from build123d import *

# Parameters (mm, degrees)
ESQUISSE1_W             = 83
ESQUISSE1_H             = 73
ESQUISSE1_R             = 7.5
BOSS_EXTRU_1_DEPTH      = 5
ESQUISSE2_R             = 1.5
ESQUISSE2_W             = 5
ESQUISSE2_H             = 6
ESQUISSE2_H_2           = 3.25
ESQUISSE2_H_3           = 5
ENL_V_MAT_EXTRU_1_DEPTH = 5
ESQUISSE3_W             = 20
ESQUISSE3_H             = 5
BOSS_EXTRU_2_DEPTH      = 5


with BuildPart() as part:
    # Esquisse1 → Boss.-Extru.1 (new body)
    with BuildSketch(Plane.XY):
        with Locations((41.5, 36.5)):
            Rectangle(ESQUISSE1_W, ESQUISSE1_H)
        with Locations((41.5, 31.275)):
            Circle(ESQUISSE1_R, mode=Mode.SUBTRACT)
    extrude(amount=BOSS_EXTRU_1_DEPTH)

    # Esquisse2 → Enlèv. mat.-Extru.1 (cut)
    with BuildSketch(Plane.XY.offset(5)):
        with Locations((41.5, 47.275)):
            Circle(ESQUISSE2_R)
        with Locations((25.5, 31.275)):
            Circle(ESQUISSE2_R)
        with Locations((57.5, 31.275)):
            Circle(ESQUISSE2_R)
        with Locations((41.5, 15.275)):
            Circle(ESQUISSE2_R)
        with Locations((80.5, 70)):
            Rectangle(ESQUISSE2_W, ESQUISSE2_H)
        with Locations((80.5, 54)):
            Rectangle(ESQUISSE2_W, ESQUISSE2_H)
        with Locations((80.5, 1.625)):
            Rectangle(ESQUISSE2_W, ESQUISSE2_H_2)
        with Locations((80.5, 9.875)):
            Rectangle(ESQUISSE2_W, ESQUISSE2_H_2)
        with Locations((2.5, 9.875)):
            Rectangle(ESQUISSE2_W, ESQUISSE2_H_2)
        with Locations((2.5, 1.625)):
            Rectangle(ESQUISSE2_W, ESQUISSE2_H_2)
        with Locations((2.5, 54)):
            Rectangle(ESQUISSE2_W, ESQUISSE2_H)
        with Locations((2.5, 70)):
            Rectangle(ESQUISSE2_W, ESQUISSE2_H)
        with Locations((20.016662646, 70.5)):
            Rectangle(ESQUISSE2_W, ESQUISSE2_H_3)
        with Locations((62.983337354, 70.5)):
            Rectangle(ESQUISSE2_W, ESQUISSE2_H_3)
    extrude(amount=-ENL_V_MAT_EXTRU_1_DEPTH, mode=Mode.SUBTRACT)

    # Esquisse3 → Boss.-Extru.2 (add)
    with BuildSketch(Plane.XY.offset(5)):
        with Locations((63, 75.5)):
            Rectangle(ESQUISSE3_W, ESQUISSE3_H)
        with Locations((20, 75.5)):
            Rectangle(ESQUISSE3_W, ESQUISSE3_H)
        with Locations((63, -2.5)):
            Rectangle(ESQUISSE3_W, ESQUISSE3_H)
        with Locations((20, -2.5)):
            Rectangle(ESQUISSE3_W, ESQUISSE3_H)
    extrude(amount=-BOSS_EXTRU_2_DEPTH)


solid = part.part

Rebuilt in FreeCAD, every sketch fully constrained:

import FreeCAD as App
import Part
import Sketcher

V = App.Vector
Q = App.Units.Quantity

doc = App.newDocument("Part")
body = doc.addObject("PartDesign::Body", "Body")

# Sketch on XY plane
sketch1 = body.newObject("Sketcher::SketchObject", "Sketch")
sketch1.AttachmentSupport = (doc.getObject("XY_Plane"), [""])
sketch1.MapMode = "FlatFace"
sketch1.addGeometry(Part.LineSegment(V(0, 73, 0), V(0, 0, 0)), False)
sketch1.addGeometry(Part.LineSegment(V(0, 0, 0), V(83, 0, 0)), False)
sketch1.addGeometry(Part.LineSegment(V(83, 0, 0), V(83, 73, 0)), False)
sketch1.addGeometry(Part.LineSegment(V(83, 73, 0), V(0, 73, 0)), False)
sketch1.addGeometry(Part.Circle(V(41.5, 31.275, 0), V(0, 0, 1), 7.5), False)
sketch1.addConstraint(Sketcher.Constraint("Coincident", 0, 2, 1, 1))
sketch1.addConstraint(Sketcher.Constraint("Coincident", 1, 2, 2, 1))
sketch1.addConstraint(Sketcher.Constraint("Coincident", 2, 2, 3, 1))
sketch1.addConstraint(Sketcher.Constraint("Coincident", 3, 2, 0, 1))
sketch1.addConstraint(Sketcher.Constraint("Vertical", 0))
sketch1.addConstraint(Sketcher.Constraint("Horizontal", 1))
sketch1.addConstraint(Sketcher.Constraint("Vertical", 2))
sketch1.addConstraint(Sketcher.Constraint("Horizontal", 3))
sketch1.addConstraint(Sketcher.Constraint("Coincident", 0, 2, -1, 1))
sketch1.addConstraint(Sketcher.Constraint("Diameter", 4, Q("15 mm")))
sketch1.addConstraint(Sketcher.Constraint("DistanceX", 1, 1, 1, 2, Q("83 mm")))
sketch1.addConstraint(Sketcher.Constraint("DistanceY", 0, 2, 0, 1, Q("73 mm")))
sketch1.addConstraint(Sketcher.Constraint("DistanceX", -1, 1, 4, 3, Q("41.5 mm")))
sketch1.addConstraint(Sketcher.Constraint("DistanceY", -1, 1, 4, 3, Q("31.275 mm")))
pad1 = body.newObject("PartDesign::Pad", "Pad")
pad1.Profile = sketch1
pad1.Length = 5

# Sketch on XY plane
sketch2 = body.newObject("Sketcher::SketchObject", "Sketch001")
sketch2.AttachmentSupport = (doc.getObject("XY_Plane"), [""])
sketch2.MapMode = "FlatFace"
sketch2.AttachmentOffset = App.Placement(V(0, 0, 5), App.Rotation())
sketch2.addGeometry(Part.Circle(V(41.5, 47.275, 0), V(0, 0, 1), 1.5), False)
sketch2.addGeometry(Part.Circle(V(25.5, 31.275, 0), V(0, 0, 1), 1.5), False)
sketch2.addGeometry(Part.Circle(V(57.5, 31.275, 0), V(0, 0, 1), 1.5), False)
sketch2.addGeometry(Part.Circle(V(41.5, 15.275, 0), V(0, 0, 1), 1.5), False)
sketch2.addGeometry(Part.LineSegment(V(78, 73, 0), V(78, 67, 0)), False)
sketch2.addGeometry(Part.LineSegment(V(78, 67, 0), V(83, 67, 0)), False)
sketch2.addGeometry(Part.LineSegment(V(83, 67, 0), V(83, 73, 0)), False)
sketch2.addGeometry(Part.LineSegment(V(83, 73, 0), V(78, 73, 0)), False)
sketch2.addGeometry(Part.LineSegment(V(78, 57, 0), V(78, 51, 0)), False)
sketch2.addGeometry(Part.LineSegment(V(78, 51, 0), V(83, 51, 0)), False)
sketch2.addGeometry(Part.LineSegment(V(83, 51, 0), V(83, 57, 0)), False)
sketch2.addGeometry(Part.LineSegment(V(83, 57, 0), V(78, 57, 0)), False)
sketch2.addGeometry(Part.LineSegment(V(78, 3.25, 0), V(78, 0, 0)), False)
sketch2.addGeometry(Part.LineSegment(V(78, 0, 0), V(83, 0, 0)), False)
sketch2.addGeometry(Part.LineSegment(V(83, 0, 0), V(83, 3.25, 0)), False)
sketch2.addGeometry(Part.LineSegment(V(83, 3.25, 0), V(78, 3.25, 0)), False)
sketch2.addGeometry(Part.LineSegment(V(78, 11.5, 0), V(78, 8.25, 0)), False)
sketch2.addGeometry(Part.LineSegment(V(78, 8.25, 0), V(83, 8.25, 0)), False)
sketch2.addGeometry(Part.LineSegment(V(83, 8.25, 0), V(83, 11.5, 0)), False)
sketch2.addGeometry(Part.LineSegment(V(83, 11.5, 0), V(78, 11.5, 0)), False)
sketch2.addGeometry(Part.LineSegment(V(0, 11.5, 0), V(0, 8.25, 0)), False)
sketch2.addGeometry(Part.LineSegment(V(0, 8.25, 0), V(5, 8.25, 0)), False)
sketch2.addGeometry(Part.LineSegment(V(5, 8.25, 0), V(5, 11.5, 0)), False)
sketch2.addGeometry(Part.LineSegment(V(5, 11.5, 0), V(0, 11.5, 0)), False)
sketch2.addGeometry(Part.LineSegment(V(0, 3.25, 0), V(0, 0, 0)), False)
sketch2.addGeometry(Part.LineSegment(V(0, 0, 0), V(5, 0, 0)), False)
sketch2.addGeometry(Part.LineSegment(V(5, 0, 0), V(5, 3.25, 0)), False)
sketch2.addGeometry(Part.LineSegment(V(5, 3.25, 0), V(0, 3.25, 0)), False)
sketch2.addGeometry(Part.LineSegment(V(0, 57, 0), V(0, 51, 0)), False)
sketch2.addGeometry(Part.LineSegment(V(0, 51, 0), V(5, 51, 0)), False)
sketch2.addGeometry(Part.LineSegment(V(5, 51, 0), V(5, 57, 0)), False)
sketch2.addGeometry(Part.LineSegment(V(5, 57, 0), V(0, 57, 0)), False)
sketch2.addGeometry(Part.LineSegment(V(0, 73, 0), V(0, 67, 0)), False)
sketch2.addGeometry(Part.LineSegment(V(0, 67, 0), V(5, 67, 0)), False)
sketch2.addGeometry(Part.LineSegment(V(5, 67, 0), V(5, 73, 0)), False)
sketch2.addGeometry(Part.LineSegment(V(5, 73, 0), V(0, 73, 0)), False)
sketch2.addGeometry(Part.LineSegment(V(17.516663, 73, 0), V(17.516663, 68, 0)), False)
sketch2.addGeometry(Part.LineSegment(V(17.516663, 68, 0), V(22.516663, 68, 0)), False)
sketch2.addGeometry(Part.LineSegment(V(22.516663, 68, 0), V(22.516663, 73, 0)), False)
sketch2.addGeometry(Part.LineSegment(V(22.516663, 73, 0), V(17.516663, 73, 0)), False)
sketch2.addGeometry(Part.LineSegment(V(60.483337, 73, 0), V(60.483337, 68, 0)), False)
sketch2.addGeometry(Part.LineSegment(V(60.483337, 68, 0), V(65.483337, 68, 0)), False)
sketch2.addGeometry(Part.LineSegment(V(65.483337, 68, 0), V(65.483337, 73, 0)), False)
sketch2.addGeometry(Part.LineSegment(V(65.483337, 73, 0), V(60.483337, 73, 0)), False)
sketch2.addConstraint(Sketcher.Constraint("Coincident", 4, 2, 5, 1))
sketch2.addConstraint(Sketcher.Constraint("Coincident", 5, 2, 6, 1))
sketch2.addConstraint(Sketcher.Constraint("Coincident", 6, 2, 7, 1))
sketch2.addConstraint(Sketcher.Constraint("Coincident", 7, 2, 4, 1))
sketch2.addConstraint(Sketcher.Constraint("Coincident", 8, 2, 9, 1))
sketch2.addConstraint(Sketcher.Constraint("Coincident", 9, 2, 10, 1))
sketch2.addConstraint(Sketcher.Constraint("Coincident", 10, 2, 11, 1))
sketch2.addConstraint(Sketcher.Constraint("Coincident", 11, 2, 8, 1))
sketch2.addConstraint(Sketcher.Constraint("Coincident", 12, 2, 13, 1))
sketch2.addConstraint(Sketcher.Constraint("Coincident", 13, 2, 14, 1))
sketch2.addConstraint(Sketcher.Constraint("Coincident", 14, 2, 15, 1))
sketch2.addConstraint(Sketcher.Constraint("Coincident", 15, 2, 12, 1))
sketch2.addConstraint(Sketcher.Constraint("Coincident", 16, 2, 17, 1))
sketch2.addConstraint(Sketcher.Constraint("Coincident", 17, 2, 18, 1))
sketch2.addConstraint(Sketcher.Constraint("Coincident", 18, 2, 19, 1))
sketch2.addConstraint(Sketcher.Constraint("Coincident", 19, 2, 16, 1))
sketch2.addConstraint(Sketcher.Constraint("Coincident", 20, 2, 21, 1))
sketch2.addConstraint(Sketcher.Constraint("Coincident", 21, 2, 22, 1))
sketch2.addConstraint(Sketcher.Constraint("Coincident", 22, 2, 23, 1))
sketch2.addConstraint(Sketcher.Constraint("Coincident", 23, 2, 20, 1))
sketch2.addConstraint(Sketcher.Constraint("Coincident", 24, 2, 25, 1))
sketch2.addConstraint(Sketcher.Constraint("Coincident", 25, 2, 26, 1))
sketch2.addConstraint(Sketcher.Constraint("Coincident", 26, 2, 27, 1))
sketch2.addConstraint(Sketcher.Constraint("Coincident", 27, 2, 24, 1))
sketch2.addConstraint(Sketcher.Constraint("Coincident", 28, 2, 29, 1))
sketch2.addConstraint(Sketcher.Constraint("Coincident", 29, 2, 30, 1))
sketch2.addConstraint(Sketcher.Constraint("Coincident", 30, 2, 31, 1))
sketch2.addConstraint(Sketcher.Constraint("Coincident", 31, 2, 28, 1))
sketch2.addConstraint(Sketcher.Constraint("Coincident", 32, 2, 33, 1))
sketch2.addConstraint(Sketcher.Constraint("Coincident", 33, 2, 34, 1))
sketch2.addConstraint(Sketcher.Constraint("Coincident", 34, 2, 35, 1))
sketch2.addConstraint(Sketcher.Constraint("Coincident", 35, 2, 32, 1))
sketch2.addConstraint(Sketcher.Constraint("Coincident", 36, 2, 37, 1))
sketch2.addConstraint(Sketcher.Constraint("Coincident", 37, 2, 38, 1))
sketch2.addConstraint(Sketcher.Constraint("Coincident", 38, 2, 39, 1))
sketch2.addConstraint(Sketcher.Constraint("Coincident", 39, 2, 36, 1))
sketch2.addConstraint(Sketcher.Constraint("Coincident", 40, 2, 41, 1))
sketch2.addConstraint(Sketcher.Constraint("Coincident", 41, 2, 42, 1))
sketch2.addConstraint(Sketcher.Constraint("Coincident", 42, 2, 43, 1))
sketch2.addConstraint(Sketcher.Constraint("Coincident", 43, 2, 40, 1))
sketch2.addConstraint(Sketcher.Constraint("Vertical", 4))
sketch2.addConstraint(Sketcher.Constraint("Horizontal", 5))
sketch2.addConstraint(Sketcher.Constraint("Vertical", 6))
sketch2.addConstraint(Sketcher.Constraint("Horizontal", 7))
sketch2.addConstraint(Sketcher.Constraint("Vertical", 8))
sketch2.addConstraint(Sketcher.Constraint("Horizontal", 9))
sketch2.addConstraint(Sketcher.Constraint("Vertical", 10))
sketch2.addConstraint(Sketcher.Constraint("Horizontal", 11))
sketch2.addConstraint(Sketcher.Constraint("Vertical", 12))
sketch2.addConstraint(Sketcher.Constraint("Horizontal", 13))
sketch2.addConstraint(Sketcher.Constraint("Vertical", 14))
sketch2.addConstraint(Sketcher.Constraint("Horizontal", 15))
sketch2.addConstraint(Sketcher.Constraint("Vertical", 16))
sketch2.addConstraint(Sketcher.Constraint("Horizontal", 17))
sketch2.addConstraint(Sketcher.Constraint("Vertical", 18))
sketch2.addConstraint(Sketcher.Constraint("Horizontal", 19))
sketch2.addConstraint(Sketcher.Constraint("Vertical", 20))
sketch2.addConstraint(Sketcher.Constraint("Horizontal", 21))
sketch2.addConstraint(Sketcher.Constraint("Vertical", 22))
sketch2.addConstraint(Sketcher.Constraint("Horizontal", 23))
sketch2.addConstraint(Sketcher.Constraint("Vertical", 24))
sketch2.addConstraint(Sketcher.Constraint("Horizontal", 25))
sketch2.addConstraint(Sketcher.Constraint("Vertical", 26))
sketch2.addConstraint(Sketcher.Constraint("Horizontal", 27))
sketch2.addConstraint(Sketcher.Constraint("Vertical", 28))
sketch2.addConstraint(Sketcher.Constraint("Horizontal", 29))
sketch2.addConstraint(Sketcher.Constraint("Vertical", 30))
sketch2.addConstraint(Sketcher.Constraint("Horizontal", 31))
sketch2.addConstraint(Sketcher.Constraint("Vertical", 32))
sketch2.addConstraint(Sketcher.Constraint("Horizontal", 33))
sketch2.addConstraint(Sketcher.Constraint("Vertical", 34))
sketch2.addConstraint(Sketcher.Constraint("Horizontal", 35))
sketch2.addConstraint(Sketcher.Constraint("Vertical", 36))
sketch2.addConstraint(Sketcher.Constraint("Horizontal", 37))
sketch2.addConstraint(Sketcher.Constraint("Vertical", 38))
sketch2.addConstraint(Sketcher.Constraint("Horizontal", 39))
sketch2.addConstraint(Sketcher.Constraint("Vertical", 40))
sketch2.addConstraint(Sketcher.Constraint("Horizontal", 41))
sketch2.addConstraint(Sketcher.Constraint("Vertical", 42))
sketch2.addConstraint(Sketcher.Constraint("Horizontal", 43))
sketch2.addConstraint(Sketcher.Constraint("Coincident", 24, 2, -1, 1))
sketch2.addConstraint(Sketcher.Constraint("Equal", 0, 1))
sketch2.addConstraint(Sketcher.Constraint("Equal", 1, 2))
sketch2.addConstraint(Sketcher.Constraint("Equal", 2, 3))
sketch2.addConstraint(Sketcher.Constraint("PointOnObject", 12, 2, -1))
sketch2.addConstraint(Sketcher.Constraint("PointOnObject", 20, 2, -2))
sketch2.addConstraint(Sketcher.Constraint("PointOnObject", 28, 2, -2))
sketch2.addConstraint(Sketcher.Constraint("PointOnObject", 32, 2, -2))
sketch2.addConstraint(Sketcher.Constraint("Horizontal", 1, 3, 2, 3))
sketch2.addConstraint(Sketcher.Constraint("Horizontal", 17, 2, 20, 2))
sketch2.addConstraint(Sketcher.Constraint("Horizontal", 19, 2, 22, 2))
sketch2.addConstraint(Sketcher.Constraint("Horizontal", 15, 2, 26, 2))
sketch2.addConstraint(Sketcher.Constraint("Horizontal", 9, 2, 28, 2))
sketch2.addConstraint(Sketcher.Constraint("Horizontal", 11, 2, 30, 2))
sketch2.addConstraint(Sketcher.Constraint("Horizontal", 5, 2, 32, 2))
sketch2.addConstraint(Sketcher.Constraint("Horizontal", 7, 2, 34, 2))
sketch2.addConstraint(Sketcher.Constraint("Horizontal", 35, 2, 38, 2))
sketch2.addConstraint(Sketcher.Constraint("Horizontal", 37, 2, 40, 2))
sketch2.addConstraint(Sketcher.Constraint("Horizontal", 39, 2, 42, 2))
sketch2.addConstraint(Sketcher.Constraint("Vertical", 0, 3, 3, 3))
sketch2.addConstraint(Sketcher.Constraint("Vertical", 7, 2, 8, 2))
sketch2.addConstraint(Sketcher.Constraint("Vertical", 6, 2, 9, 2))
sketch2.addConstraint(Sketcher.Constraint("Vertical", 11, 2, 12, 2))
sketch2.addConstraint(Sketcher.Constraint("Vertical", 10, 2, 13, 2))
sketch2.addConstraint(Sketcher.Constraint("Vertical", 15, 2, 16, 2))
sketch2.addConstraint(Sketcher.Constraint("Vertical", 14, 2, 17, 2))
sketch2.addConstraint(Sketcher.Constraint("Vertical", 22, 2, 25, 2))
sketch2.addConstraint(Sketcher.Constraint("Vertical", 26, 2, 29, 2))
sketch2.addConstraint(Sketcher.Constraint("Vertical", 30, 2, 33, 2))
sketch2.addConstraint(Sketcher.Constraint("Equal", 19, 21))
sketch2.addConstraint(Sketcher.Constraint("Equal", 35, 37))
sketch2.addConstraint(Sketcher.Constraint("Equal", 39, 41))
sketch2.addConstraint(Sketcher.Constraint("Equal", 6, 8))
sketch2.addConstraint(Sketcher.Constraint("Equal", 14, 16))
sketch2.addConstraint(Sketcher.Constraint("Equal", 43, 36))
sketch2.addConstraint(Sketcher.Constraint("Diameter", 0, Q("3 mm")))
sketch2.addConstraint(Sketcher.Constraint("DistanceX", 5, 1, 5, 2, Q("5 mm")))
sketch2.addConstraint(Sketcher.Constraint("DistanceY", 4, 2, 4, 1, Q("6 mm")))
sketch2.addConstraint(Sketcher.Constraint("DistanceX", -1, 1, 4, 2, Q("78 mm")))
sketch2.addConstraint(Sketcher.Constraint("DistanceY", -1, 1, 4, 2, Q("67 mm")))
sketch2.addConstraint(Sketcher.Constraint("DistanceY", -1, 1, 8, 2, Q("51 mm")))
sketch2.addConstraint(Sketcher.Constraint("DistanceX", 1, 3, 0, 3, Q("16 mm")))
sketch2.addConstraint(Sketcher.Constraint("DistanceY", 1, 3, 0, 3, Q("16 mm")))
sketch2.addConstraint(Sketcher.Constraint("DistanceX", 0, 3, 2, 3, Q("16 mm")))
sketch2.addConstraint(Sketcher.Constraint("DistanceY", 3, 3, 1, 3, Q("16 mm")))
sketch2.addConstraint(Sketcher.Constraint("DistanceY", 15, 2, 16, 2, Q("5 mm")))
sketch2.addConstraint(Sketcher.Constraint("DistanceY", 12, 2, 12, 1, Q("3.25 mm")))
sketch2.addConstraint(Sketcher.Constraint("DistanceX", -1, 1, 0, 3, Q("41.5 mm")))
sketch2.addConstraint(Sketcher.Constraint("DistanceY", -1, 1, 0, 3, Q("47.275 mm")))
sketch2.addConstraint(Sketcher.Constraint("DistanceX", -1, 1, 36, 2, Q("17.516663 mm")))
sketch2.addConstraint(Sketcher.Constraint("DistanceX", -1, 1, 40, 2, Q("60.483337 mm")))
pocket1 = body.newObject("PartDesign::Pocket", "Pocket")
pocket1.Profile = sketch2
pocket1.Length = 5

# Sketch on XY plane
sketch3 = body.newObject("Sketcher::SketchObject", "Sketch002")
sketch3.AttachmentSupport = (doc.getObject("XY_Plane"), [""])
sketch3.MapMode = "FlatFace"
sketch3.AttachmentOffset = App.Placement(V(0, 0, 5), App.Rotation())
sketch3.addGeometry(Part.LineSegment(V(53, 78, 0), V(53, 73, 0)), False)
sketch3.addGeometry(Part.LineSegment(V(53, 73, 0), V(73, 73, 0)), False)
sketch3.addGeometry(Part.LineSegment(V(73, 73, 0), V(73, 78, 0)), False)
sketch3.addGeometry(Part.LineSegment(V(73, 78, 0), V(53, 78, 0)), False)
sketch3.addGeometry(Part.LineSegment(V(10, 78, 0), V(10, 73, 0)), False)
sketch3.addGeometry(Part.LineSegment(V(10, 73, 0), V(30, 73, 0)), False)
sketch3.addGeometry(Part.LineSegment(V(30, 73, 0), V(30, 78, 0)), False)
sketch3.addGeometry(Part.LineSegment(V(30, 78, 0), V(10, 78, 0)), False)
sketch3.addGeometry(Part.LineSegment(V(53, 0, 0), V(53, -5, 0)), False)
sketch3.addGeometry(Part.LineSegment(V(53, -5, 0), V(73, -5, 0)), False)
sketch3.addGeometry(Part.LineSegment(V(73, -5, 0), V(73, 0, 0)), False)
sketch3.addGeometry(Part.LineSegment(V(73, 0, 0), V(53, 0, 0)), False)
sketch3.addGeometry(Part.LineSegment(V(10, 0, 0), V(10, -5, 0)), False)
sketch3.addGeometry(Part.LineSegment(V(10, -5, 0), V(30, -5, 0)), False)
sketch3.addGeometry(Part.LineSegment(V(30, -5, 0), V(30, 0, 0)), False)
sketch3.addGeometry(Part.LineSegment(V(30, 0, 0), V(10, 0, 0)), False)
sketch3.addConstraint(Sketcher.Constraint("Coincident", 0, 2, 1, 1))
sketch3.addConstraint(Sketcher.Constraint("Coincident", 1, 2, 2, 1))
sketch3.addConstraint(Sketcher.Constraint("Coincident", 2, 2, 3, 1))
sketch3.addConstraint(Sketcher.Constraint("Coincident", 3, 2, 0, 1))
sketch3.addConstraint(Sketcher.Constraint("Coincident", 4, 2, 5, 1))
sketch3.addConstraint(Sketcher.Constraint("Coincident", 5, 2, 6, 1))
sketch3.addConstraint(Sketcher.Constraint("Coincident", 6, 2, 7, 1))
sketch3.addConstraint(Sketcher.Constraint("Coincident", 7, 2, 4, 1))
sketch3.addConstraint(Sketcher.Constraint("Coincident", 8, 2, 9, 1))
sketch3.addConstraint(Sketcher.Constraint("Coincident", 9, 2, 10, 1))
sketch3.addConstraint(Sketcher.Constraint("Coincident", 10, 2, 11, 1))
sketch3.addConstraint(Sketcher.Constraint("Coincident", 11, 2, 8, 1))
sketch3.addConstraint(Sketcher.Constraint("Coincident", 12, 2, 13, 1))
sketch3.addConstraint(Sketcher.Constraint("Coincident", 13, 2, 14, 1))
sketch3.addConstraint(Sketcher.Constraint("Coincident", 14, 2, 15, 1))
sketch3.addConstraint(Sketcher.Constraint("Coincident", 15, 2, 12, 1))
sketch3.addConstraint(Sketcher.Constraint("Vertical", 0))
sketch3.addConstraint(Sketcher.Constraint("Horizontal", 1))
sketch3.addConstraint(Sketcher.Constraint("Vertical", 2))
sketch3.addConstraint(Sketcher.Constraint("Horizontal", 3))
sketch3.addConstraint(Sketcher.Constraint("Vertical", 4))
sketch3.addConstraint(Sketcher.Constraint("Horizontal", 5))
sketch3.addConstraint(Sketcher.Constraint("Vertical", 6))
sketch3.addConstraint(Sketcher.Constraint("Horizontal", 7))
sketch3.addConstraint(Sketcher.Constraint("Vertical", 8))
sketch3.addConstraint(Sketcher.Constraint("Horizontal", 9))
sketch3.addConstraint(Sketcher.Constraint("Vertical", 10))
sketch3.addConstraint(Sketcher.Constraint("Horizontal", 11))
sketch3.addConstraint(Sketcher.Constraint("Vertical", 12))
sketch3.addConstraint(Sketcher.Constraint("Horizontal", 13))
sketch3.addConstraint(Sketcher.Constraint("Vertical", 14))
sketch3.addConstraint(Sketcher.Constraint("Horizontal", 15))
sketch3.addConstraint(Sketcher.Constraint("PointOnObject", 10, 2, -1))
sketch3.addConstraint(Sketcher.Constraint("PointOnObject", 14, 2, -1))
sketch3.addConstraint(Sketcher.Constraint("Horizontal", 1, 2, 4, 2))
sketch3.addConstraint(Sketcher.Constraint("Horizontal", 3, 2, 6, 2))
sketch3.addConstraint(Sketcher.Constraint("Horizontal", 9, 2, 12, 2))
sketch3.addConstraint(Sketcher.Constraint("Vertical", 3, 2, 8, 2))
sketch3.addConstraint(Sketcher.Constraint("Vertical", 2, 2, 9, 2))
sketch3.addConstraint(Sketcher.Constraint("Vertical", 7, 2, 12, 2))
sketch3.addConstraint(Sketcher.Constraint("Vertical", 6, 2, 13, 2))
sketch3.addConstraint(Sketcher.Constraint("Equal", 3, 5))
sketch3.addConstraint(Sketcher.Constraint("Equal", 6, 8))
sketch3.addConstraint(Sketcher.Constraint("DistanceX", 1, 1, 1, 2, Q("20 mm")))
sketch3.addConstraint(Sketcher.Constraint("DistanceY", 0, 2, 0, 1, Q("5 mm")))
sketch3.addConstraint(Sketcher.Constraint("DistanceX", -1, 1, 0, 2, Q("53 mm")))
sketch3.addConstraint(Sketcher.Constraint("DistanceY", -1, 1, 0, 2, Q("73 mm")))
sketch3.addConstraint(Sketcher.Constraint("DistanceX", -1, 1, 4, 2, Q("10 mm")))
pad2 = body.newObject("PartDesign::Pad", "Pad001")
pad2.Profile = sketch3
pad2.Length = 5
pad2.Reversed = True

doc.recompute()
